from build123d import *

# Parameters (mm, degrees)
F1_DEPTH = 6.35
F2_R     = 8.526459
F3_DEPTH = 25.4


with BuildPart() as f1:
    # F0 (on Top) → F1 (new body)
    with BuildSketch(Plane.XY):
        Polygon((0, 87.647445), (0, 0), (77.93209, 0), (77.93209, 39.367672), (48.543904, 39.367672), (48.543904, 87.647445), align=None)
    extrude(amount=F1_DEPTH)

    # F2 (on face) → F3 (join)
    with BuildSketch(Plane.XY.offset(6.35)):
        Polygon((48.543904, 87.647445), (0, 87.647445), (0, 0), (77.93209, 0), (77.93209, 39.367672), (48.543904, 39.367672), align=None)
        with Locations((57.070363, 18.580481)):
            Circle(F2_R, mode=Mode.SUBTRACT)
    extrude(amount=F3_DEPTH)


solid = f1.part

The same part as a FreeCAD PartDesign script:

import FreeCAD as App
import Part
import Sketcher

V = App.Vector
Q = App.Units.Quantity


def add_polygon(sketch, points):
    """Adds a closed chain of lines whose ends are joined by coincident constraints."""
    first, n = sketch.GeometryCount, len(points)
    for a, b in zip(points, points[1:] + points[:1]):
        sketch.addGeometry(Part.LineSegment(App.Vector(*a, 0), App.Vector(*b, 0)), False)
    for i in range(n):
        sketch.addConstraint(Sketcher.Constraint("Coincident", first + i, 2, first + (i + 1) % n, 1))

doc = App.newDocument("Part")
body = doc.addObject("PartDesign::Body", "Body")

# Sketch on XY plane
sketch1 = body.newObject("Sketcher::SketchObject", "Sketch")
sketch1.AttachmentSupport = (doc.getObject("XY_Plane"), [""])
sketch1.MapMode = "FlatFace"
add_polygon(sketch1, [(0, 87.647445), (0, 0), (77.93209, 0), (77.93209, 39.367672), (48.543904, 39.367672), (48.543904, 87.647445)])  # lines 0-5
sketch1.addConstraint([
    Sketcher.Constraint("Vertical", 0),
    Sketcher.Constraint("Horizontal", 1),
    Sketcher.Constraint("Vertical", 2),
    Sketcher.Constraint("Horizontal", 3),
    Sketcher.Constraint("Vertical", 4),
    Sketcher.Constraint("Horizontal", 5),
    Sketcher.Constraint("Coincident", 0, 2, -1, 1),
    Sketcher.Constraint("DistanceX", 1, 1, 1, 2, 77.93209),
    Sketcher.Constraint("DistanceX", 3, 2, 3, 1, 29.388186),
    Sketcher.Constraint("DistanceY", 0, 2, 0, 1, 87.647445),
    Sketcher.Constraint("DistanceY", 2, 1, 2, 2, 39.367672),
])
pad1 = body.newObject("PartDesign::Pad", "Pad")
pad1.Profile = sketch1
pad1.Length = Q("0.25 in")

# Sketch on XY plane
sketch2 = body.newObject("Sketcher::SketchObject", "Sketch001")
sketch2.AttachmentSupport = (doc.getObject("XY_Plane"), [""])
sketch2.MapMode = "FlatFace"
sketch2.AttachmentOffset = App.Placement(V(0, 0, 0.25 * 25.4), App.Rotation())
add_polygon(sketch2, [(48.543904, 87.647445), (0, 87.647445), (0, 0), (77.93209, 0), (77.93209, 39.367672), (48.543904, 39.367672)])  # lines 0-5
sketch2.addGeometry(Part.Circle(V(57.070363, 18.580481, 0), V(0, 0, 1), 8.526459), False)  # 6
sketch2.addConstraint([
    Sketcher.Constraint("Horizontal", 0),
    Sketcher.Constraint("Vertical", 1),
    Sketcher.Constraint("Horizontal", 2),
    Sketcher.Constraint("Vertical", 3),
    Sketcher.Constraint("Horizontal", 4),
    Sketcher.Constraint("Vertical", 5),
    Sketcher.Constraint("Coincident", 1, 2, -1, 1),
    Sketcher.Constraint("Diameter", 6, 17.052918),
    Sketcher.Constraint("DistanceX", 2, 1, 2, 2, 77.93209),
    Sketcher.Constraint("DistanceX", 0, 2, 0, 1, 48.543904),
    Sketcher.Constraint("DistanceY", 1, 2, 1, 1, 87.647445),
    Sketcher.Constraint("DistanceY", 3, 1, 3, 2, 39.367672),
    Sketcher.Constraint("DistanceY", -1, 1, 6, 3, 18.580481),
    Sketcher.Constraint("DistanceX", 4, 2, 6, 3, 8.526459),
])
pad2 = body.newObject("PartDesign::Pad", "Pad001")
pad2.Profile = sketch2
pad2.Length = Q("1 in")

doc.recompute()
